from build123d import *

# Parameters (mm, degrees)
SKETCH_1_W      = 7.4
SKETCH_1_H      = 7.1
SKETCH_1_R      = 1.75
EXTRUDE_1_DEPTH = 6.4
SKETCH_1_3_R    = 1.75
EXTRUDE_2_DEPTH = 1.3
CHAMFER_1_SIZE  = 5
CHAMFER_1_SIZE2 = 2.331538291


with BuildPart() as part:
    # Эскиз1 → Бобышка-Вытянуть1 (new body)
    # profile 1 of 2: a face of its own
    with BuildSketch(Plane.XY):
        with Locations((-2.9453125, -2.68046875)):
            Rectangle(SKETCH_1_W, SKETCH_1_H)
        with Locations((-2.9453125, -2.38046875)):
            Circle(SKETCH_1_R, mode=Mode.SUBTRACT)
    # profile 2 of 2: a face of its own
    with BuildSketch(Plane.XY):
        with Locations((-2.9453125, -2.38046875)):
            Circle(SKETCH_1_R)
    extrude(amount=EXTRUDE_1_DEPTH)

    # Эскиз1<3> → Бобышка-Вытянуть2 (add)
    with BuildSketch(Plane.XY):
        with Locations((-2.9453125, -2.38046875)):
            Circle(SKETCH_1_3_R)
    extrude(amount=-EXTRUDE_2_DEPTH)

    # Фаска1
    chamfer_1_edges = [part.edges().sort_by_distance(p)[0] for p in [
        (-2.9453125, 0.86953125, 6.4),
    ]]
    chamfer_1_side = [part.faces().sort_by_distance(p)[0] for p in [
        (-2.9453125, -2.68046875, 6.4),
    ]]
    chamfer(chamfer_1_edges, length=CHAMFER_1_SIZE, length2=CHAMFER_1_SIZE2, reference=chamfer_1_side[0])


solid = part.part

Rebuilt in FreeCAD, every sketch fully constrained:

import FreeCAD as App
import Part
import Sketcher

V = App.Vector
Q = App.Units.Quantity


def edges_at(feature, points):
    """Names of the edges that pass closest to the given points."""
    edges = feature.Shape.Edges
    near = lambda p: min(range(len(edges)), key=lambda i: edges[i].distToShape(Part.Vertex(*p))[0])
    return sorted({f"Edge{near(p) + 1}" for p in points})

doc = App.newDocument("Part")
body = doc.addObject("PartDesign::Body", "Body")

# Sketch on XY plane
sketch1 = doc.addObject("Sketcher::SketchObject", "Sketch")
body.addObject(sketch1)
sketch1.AttachmentSupport = (doc.XY_Plane, [""])
sketch1.MapMode = "FlatFace"
sketch1.addGeometry(Part.LineSegment(V(-6.645313, 0.869531, 0), V(-6.645313, -6.230469, 0)), False)
sketch1.addGeometry(Part.LineSegment(V(-6.645313, -6.230469, 0), V(0.754687, -6.230469, 0)), False)
sketch1.addGeometry(Part.LineSegment(V(0.754687, -6.230469, 0), V(0.754687, 0.869531, 0)), False)
sketch1.addGeometry(Part.LineSegment(V(0.754687, 0.869531, 0), V(-6.645313, 0.869531, 0)), False)
sketch1.addConstraint(Sketcher.Constraint("Coincident", 0, 2, 1, 1))
sketch1.addConstraint(Sketcher.Constraint("Coincident", 1, 2, 2, 1))
sketch1.addConstraint(Sketcher.Constraint("Coincident", 2, 2, 3, 1))
sketch1.addConstraint(Sketcher.Constraint("Coincident", 3, 2, 0, 1))
sketch1.addConstraint(Sketcher.Constraint("Vertical", 0))
sketch1.addConstraint(Sketcher.Constraint("Horizontal", 1))
sketch1.addConstraint(Sketcher.Constraint("Vertical", 2))
sketch1.addConstraint(Sketcher.Constraint("Horizontal", 3))
sketch1.addConstraint(Sketcher.Constraint("DistanceX", 1, 1, 1, 2, Q("7.4 mm")))
sketch1.addConstraint(Sketcher.Constraint("DistanceY", 0, 2, 0, 1, Q("7.1 mm")))
sketch1.addConstraint(Sketcher.Constraint("DistanceY", 0, 2, -1, 1, Q("6.230469 mm")))
sketch1.addConstraint(Sketcher.Constraint("DistanceX", 0, 2, -1, 1, Q("6.645313 mm")))
pad1 = doc.addObject("PartDesign::Pad", "Pad")
body.addObject(pad1)
pad1.Profile = sketch1
pad1.Length = 6.4

# Sketch on XY plane
sketch2 = doc.addObject("Sketcher::SketchObject", "Sketch001")
body.addObject(sketch2)
sketch2.AttachmentSupport = (doc.XY_Plane, [""])
sketch2.MapMode = "FlatFace"
sketch2.addGeometry(Part.Circle(V(-2.945312, -2.380469, 0), V(0, 0, 1), 1.75), False)
sketch2.addConstraint(Sketcher.Constraint("Diameter", 0, Q("3.5 mm")))
sketch2.addConstraint(Sketcher.Constraint("DistanceY", 0, 3, -1, 1, Q("2.380469 mm")))
sketch2.addConstraint(Sketcher.Constraint("DistanceX", 0, 3, -1, 1, Q("2.945312 mm")))
pad2 = doc.addObject("PartDesign::Pad", "Pad001")
body.addObject(pad2)
pad2.Profile = sketch2
pad2.Length = 1.3
pad2.Reversed = True
doc.recompute()

chamfer = doc.addObject("PartDesign::Chamfer", "Chamfer")
body.addObject(chamfer)
chamfer.Base = (pad2, edges_at(pad2, [(-2.945, 0.87, 6.4)]))
chamfer.ChamferType = "Two distances"
chamfer.Size = 5
chamfer.Size2 = 2.331538
chamfer.FlipDirection = True

doc.recompute()
